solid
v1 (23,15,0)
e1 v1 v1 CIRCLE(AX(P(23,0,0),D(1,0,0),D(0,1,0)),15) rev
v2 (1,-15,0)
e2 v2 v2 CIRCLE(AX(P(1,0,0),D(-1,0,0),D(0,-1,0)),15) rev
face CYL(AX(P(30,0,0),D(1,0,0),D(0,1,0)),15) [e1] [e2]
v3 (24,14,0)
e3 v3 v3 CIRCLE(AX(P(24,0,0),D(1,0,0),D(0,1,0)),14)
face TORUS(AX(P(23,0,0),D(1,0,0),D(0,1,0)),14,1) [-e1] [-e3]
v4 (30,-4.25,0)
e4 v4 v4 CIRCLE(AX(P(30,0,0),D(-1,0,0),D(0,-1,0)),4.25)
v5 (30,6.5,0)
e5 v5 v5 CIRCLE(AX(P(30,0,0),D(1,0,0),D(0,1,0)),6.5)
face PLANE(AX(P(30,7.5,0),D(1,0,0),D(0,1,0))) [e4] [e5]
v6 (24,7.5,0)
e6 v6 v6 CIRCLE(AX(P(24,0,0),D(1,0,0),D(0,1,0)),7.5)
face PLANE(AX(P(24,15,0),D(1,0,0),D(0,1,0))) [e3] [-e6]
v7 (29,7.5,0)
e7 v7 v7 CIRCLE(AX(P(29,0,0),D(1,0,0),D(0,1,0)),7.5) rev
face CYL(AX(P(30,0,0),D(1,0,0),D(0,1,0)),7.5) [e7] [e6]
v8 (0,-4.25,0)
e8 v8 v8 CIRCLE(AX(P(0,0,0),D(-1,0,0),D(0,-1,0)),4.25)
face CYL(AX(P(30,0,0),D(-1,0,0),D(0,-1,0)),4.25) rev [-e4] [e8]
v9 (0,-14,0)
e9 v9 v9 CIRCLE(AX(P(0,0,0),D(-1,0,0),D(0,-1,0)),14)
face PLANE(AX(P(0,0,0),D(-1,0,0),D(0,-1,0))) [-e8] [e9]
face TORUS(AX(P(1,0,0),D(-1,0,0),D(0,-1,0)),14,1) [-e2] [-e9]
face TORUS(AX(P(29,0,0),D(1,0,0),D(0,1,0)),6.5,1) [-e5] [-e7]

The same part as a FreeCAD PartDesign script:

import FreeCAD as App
import Part
import Sketcher
from FreeCAD import Vector
Q = App.Units.Quantity


def edges_at(feature, points):
    """Names of the edges that pass closest to the given points."""
    edges = feature.Shape.Edges
    near = lambda p: min(range(len(edges)), key=lambda i: edges[i].distToShape(Part.Vertex(*p))[0])
    return sorted({f"Edge{near(p) + 1}" for p in points})

doc = App.newDocument("Part")
body = doc.addObject("PartDesign::Body", "Body")

sketch1 = body.newObject("Sketcher::SketchObject", "Sketch")
sketch1.AttachmentSupport = (doc.getObject("XY_Plane"), [""])
sketch1.MapMode = "FlatFace"
sketch1.addGeometry(Part.LineSegment(Vector(0, 15, 0), Vector(0, 0, 0)), False)
sketch1.addGeometry(Part.LineSegment(Vector(0, 0, 0), Vector(30, 0, 0)), False)
sketch1.addGeometry(Part.LineSegment(Vector(30, 0, 0), Vector(30, 8, 0)), False)
sketch1.addGeometry(Part.LineSegment(Vector(30, 8, 0), Vector(24, 8, 0)), False)
sketch1.addGeometry(Part.LineSegment(Vector(24, 8, 0), Vector(24, 15, 0)), False)
sketch1.addGeometry(Part.LineSegment(Vector(24, 15, 0), Vector(0, 15, 0)), False)
sketch1.addConstraint(Sketcher.Constraint("Coincident", 0, 2, 1, 1))
sketch1.addConstraint(Sketcher.Constraint("Coincident", 1, 2, 2, 1))
sketch1.addConstraint(Sketcher.Constraint("Coincident", 2, 2, 3, 1))
sketch1.addConstraint(Sketcher.Constraint("Coincident", 3, 2, 4, 1))
sketch1.addConstraint(Sketcher.Constraint("Coincident", 4, 2, 5, 1))
sketch1.addConstraint(Sketcher.Constraint("Coincident", 5, 2, 0, 1))
sketch1.addConstraint(Sketcher.Constraint("Vertical", 0))
sketch1.addConstraint(Sketcher.Constraint("Horizontal", 1))
sketch1.addConstraint(Sketcher.Constraint("Vertical", 2))
sketch1.addConstraint(Sketcher.Constraint("Horizontal", 3))
sketch1.addConstraint(Sketcher.Constraint("Vertical", 4))
sketch1.addConstraint(Sketcher.Constraint("Horizontal", 5))
sketch1.addConstraint(Sketcher.Constraint("Coincident", 0, 2, -1, 1))
sketch1.addConstraint(Sketcher.Constraint("Equal", 2, 4))
sketch1.addConstraint(Sketcher.Constraint("DistanceX", 1, 1, 1, 2, Q("30 mm")))
sketch1.addConstraint(Sketcher.Constraint("DistanceX", 3, 2, 3, 1, Q("6 mm")))
sketch1.addConstraint(Sketcher.Constraint("DistanceY", 0, 2, 0, 1, Q("15 mm")))
revolution = body.newObject("PartDesign::Revolution", "Revolution")
revolution.Profile = sketch1
revolution.ReferenceAxis = (sketch1, ["H_Axis"])
revolution.Angle = 360

sketch2 = body.newObject("Sketcher::SketchObject", "Sketch001")
sketch2.AttachmentSupport = (doc.getObject("YZ_Plane"), [""])
sketch2.MapMode = "FlatFace"
sketch2.addGeometry(Part.Circle(Vector(0, 0, 0), Vector(0, 0, 1), 4.2), False)
sketch2.addConstraint(Sketcher.Constraint("Coincident", 0, 3, -1, 1))
sketch2.addConstraint(Sketcher.Constraint("Diameter", 0, Q("8.5 mm")))
pocket1 = body.newObject("PartDesign::Pocket", "Pocket")
pocket1.Profile = sketch2
pocket1.Length = 30
pocket1.Reversed = True
doc.recompute()

fillet = body.newObject("PartDesign::Fillet", "Fillet")
fillet.Base = (pocket1, edges_at(pocket1, [(30, -7.5, 0), (24, -15, 0), (0, -15, 0)]))
fillet.Radius = 1

doc.recompute()
